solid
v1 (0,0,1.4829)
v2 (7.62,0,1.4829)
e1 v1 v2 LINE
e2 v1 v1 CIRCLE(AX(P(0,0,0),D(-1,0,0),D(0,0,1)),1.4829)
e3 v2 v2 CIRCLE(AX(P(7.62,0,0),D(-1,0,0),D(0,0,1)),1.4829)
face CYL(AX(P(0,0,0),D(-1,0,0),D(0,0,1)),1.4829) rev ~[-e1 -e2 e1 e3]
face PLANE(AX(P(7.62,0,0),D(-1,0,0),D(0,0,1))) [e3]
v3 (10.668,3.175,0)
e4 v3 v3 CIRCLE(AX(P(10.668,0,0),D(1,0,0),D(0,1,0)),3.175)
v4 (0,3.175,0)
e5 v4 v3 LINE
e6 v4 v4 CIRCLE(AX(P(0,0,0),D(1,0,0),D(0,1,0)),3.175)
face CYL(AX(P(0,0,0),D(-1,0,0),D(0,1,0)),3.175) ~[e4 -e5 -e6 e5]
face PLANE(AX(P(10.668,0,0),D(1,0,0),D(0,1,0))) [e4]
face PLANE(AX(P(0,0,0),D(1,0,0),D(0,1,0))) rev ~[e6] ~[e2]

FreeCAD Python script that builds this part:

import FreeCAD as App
import Part
import Sketcher
from FreeCAD import Vector
Q = App.Units.Quantity

doc = App.newDocument("Part")
body = doc.addObject("PartDesign::Body", "Body")

# Sketch on YZ plane
sketch1 = body.newObject("Sketcher::SketchObject", "Sketch")
sketch1.AttachmentSupport = (doc.getObject("YZ_Plane"), [""])
sketch1.MapMode = "FlatFace"
sketch1.addGeometry(Part.Circle(Vector(0, 0, 0), Vector(0, 0, 1), 3.2), False)
sketch1.addConstraint(Sketcher.Constraint("Coincident", 0, 3, -1, 1))
sketch1.addConstraint(Sketcher.Constraint("Diameter", 0, Q("0.25 in")))
pad1 = body.newObject("PartDesign::Pad", "Pad")
pad1.Profile = sketch1
pad1.Length = Q("0.42 in")

# Sketch on YZ plane
sketch2 = body.newObject("Sketcher::SketchObject", "Sketch001")
sketch2.AttachmentSupport = (doc.getObject("YZ_Plane"), [""])
sketch2.MapMode = "FlatFace"
sketch2.addGeometry(Part.Circle(Vector(0, 0, 0), Vector(0, 0, 1), 1.5), False)
sketch2.addConstraint(Sketcher.Constraint("Coincident", 0, 3, -1, 1))
sketch2.addConstraint(Sketcher.Constraint("Diameter", 0, Q("2.9658 mm")))
pocket1 = body.newObject("PartDesign::Pocket", "Pocket")
pocket1.Profile = sketch2
pocket1.Length = Q("0.3 in")
pocket1.Reversed = True

doc.recompute()
